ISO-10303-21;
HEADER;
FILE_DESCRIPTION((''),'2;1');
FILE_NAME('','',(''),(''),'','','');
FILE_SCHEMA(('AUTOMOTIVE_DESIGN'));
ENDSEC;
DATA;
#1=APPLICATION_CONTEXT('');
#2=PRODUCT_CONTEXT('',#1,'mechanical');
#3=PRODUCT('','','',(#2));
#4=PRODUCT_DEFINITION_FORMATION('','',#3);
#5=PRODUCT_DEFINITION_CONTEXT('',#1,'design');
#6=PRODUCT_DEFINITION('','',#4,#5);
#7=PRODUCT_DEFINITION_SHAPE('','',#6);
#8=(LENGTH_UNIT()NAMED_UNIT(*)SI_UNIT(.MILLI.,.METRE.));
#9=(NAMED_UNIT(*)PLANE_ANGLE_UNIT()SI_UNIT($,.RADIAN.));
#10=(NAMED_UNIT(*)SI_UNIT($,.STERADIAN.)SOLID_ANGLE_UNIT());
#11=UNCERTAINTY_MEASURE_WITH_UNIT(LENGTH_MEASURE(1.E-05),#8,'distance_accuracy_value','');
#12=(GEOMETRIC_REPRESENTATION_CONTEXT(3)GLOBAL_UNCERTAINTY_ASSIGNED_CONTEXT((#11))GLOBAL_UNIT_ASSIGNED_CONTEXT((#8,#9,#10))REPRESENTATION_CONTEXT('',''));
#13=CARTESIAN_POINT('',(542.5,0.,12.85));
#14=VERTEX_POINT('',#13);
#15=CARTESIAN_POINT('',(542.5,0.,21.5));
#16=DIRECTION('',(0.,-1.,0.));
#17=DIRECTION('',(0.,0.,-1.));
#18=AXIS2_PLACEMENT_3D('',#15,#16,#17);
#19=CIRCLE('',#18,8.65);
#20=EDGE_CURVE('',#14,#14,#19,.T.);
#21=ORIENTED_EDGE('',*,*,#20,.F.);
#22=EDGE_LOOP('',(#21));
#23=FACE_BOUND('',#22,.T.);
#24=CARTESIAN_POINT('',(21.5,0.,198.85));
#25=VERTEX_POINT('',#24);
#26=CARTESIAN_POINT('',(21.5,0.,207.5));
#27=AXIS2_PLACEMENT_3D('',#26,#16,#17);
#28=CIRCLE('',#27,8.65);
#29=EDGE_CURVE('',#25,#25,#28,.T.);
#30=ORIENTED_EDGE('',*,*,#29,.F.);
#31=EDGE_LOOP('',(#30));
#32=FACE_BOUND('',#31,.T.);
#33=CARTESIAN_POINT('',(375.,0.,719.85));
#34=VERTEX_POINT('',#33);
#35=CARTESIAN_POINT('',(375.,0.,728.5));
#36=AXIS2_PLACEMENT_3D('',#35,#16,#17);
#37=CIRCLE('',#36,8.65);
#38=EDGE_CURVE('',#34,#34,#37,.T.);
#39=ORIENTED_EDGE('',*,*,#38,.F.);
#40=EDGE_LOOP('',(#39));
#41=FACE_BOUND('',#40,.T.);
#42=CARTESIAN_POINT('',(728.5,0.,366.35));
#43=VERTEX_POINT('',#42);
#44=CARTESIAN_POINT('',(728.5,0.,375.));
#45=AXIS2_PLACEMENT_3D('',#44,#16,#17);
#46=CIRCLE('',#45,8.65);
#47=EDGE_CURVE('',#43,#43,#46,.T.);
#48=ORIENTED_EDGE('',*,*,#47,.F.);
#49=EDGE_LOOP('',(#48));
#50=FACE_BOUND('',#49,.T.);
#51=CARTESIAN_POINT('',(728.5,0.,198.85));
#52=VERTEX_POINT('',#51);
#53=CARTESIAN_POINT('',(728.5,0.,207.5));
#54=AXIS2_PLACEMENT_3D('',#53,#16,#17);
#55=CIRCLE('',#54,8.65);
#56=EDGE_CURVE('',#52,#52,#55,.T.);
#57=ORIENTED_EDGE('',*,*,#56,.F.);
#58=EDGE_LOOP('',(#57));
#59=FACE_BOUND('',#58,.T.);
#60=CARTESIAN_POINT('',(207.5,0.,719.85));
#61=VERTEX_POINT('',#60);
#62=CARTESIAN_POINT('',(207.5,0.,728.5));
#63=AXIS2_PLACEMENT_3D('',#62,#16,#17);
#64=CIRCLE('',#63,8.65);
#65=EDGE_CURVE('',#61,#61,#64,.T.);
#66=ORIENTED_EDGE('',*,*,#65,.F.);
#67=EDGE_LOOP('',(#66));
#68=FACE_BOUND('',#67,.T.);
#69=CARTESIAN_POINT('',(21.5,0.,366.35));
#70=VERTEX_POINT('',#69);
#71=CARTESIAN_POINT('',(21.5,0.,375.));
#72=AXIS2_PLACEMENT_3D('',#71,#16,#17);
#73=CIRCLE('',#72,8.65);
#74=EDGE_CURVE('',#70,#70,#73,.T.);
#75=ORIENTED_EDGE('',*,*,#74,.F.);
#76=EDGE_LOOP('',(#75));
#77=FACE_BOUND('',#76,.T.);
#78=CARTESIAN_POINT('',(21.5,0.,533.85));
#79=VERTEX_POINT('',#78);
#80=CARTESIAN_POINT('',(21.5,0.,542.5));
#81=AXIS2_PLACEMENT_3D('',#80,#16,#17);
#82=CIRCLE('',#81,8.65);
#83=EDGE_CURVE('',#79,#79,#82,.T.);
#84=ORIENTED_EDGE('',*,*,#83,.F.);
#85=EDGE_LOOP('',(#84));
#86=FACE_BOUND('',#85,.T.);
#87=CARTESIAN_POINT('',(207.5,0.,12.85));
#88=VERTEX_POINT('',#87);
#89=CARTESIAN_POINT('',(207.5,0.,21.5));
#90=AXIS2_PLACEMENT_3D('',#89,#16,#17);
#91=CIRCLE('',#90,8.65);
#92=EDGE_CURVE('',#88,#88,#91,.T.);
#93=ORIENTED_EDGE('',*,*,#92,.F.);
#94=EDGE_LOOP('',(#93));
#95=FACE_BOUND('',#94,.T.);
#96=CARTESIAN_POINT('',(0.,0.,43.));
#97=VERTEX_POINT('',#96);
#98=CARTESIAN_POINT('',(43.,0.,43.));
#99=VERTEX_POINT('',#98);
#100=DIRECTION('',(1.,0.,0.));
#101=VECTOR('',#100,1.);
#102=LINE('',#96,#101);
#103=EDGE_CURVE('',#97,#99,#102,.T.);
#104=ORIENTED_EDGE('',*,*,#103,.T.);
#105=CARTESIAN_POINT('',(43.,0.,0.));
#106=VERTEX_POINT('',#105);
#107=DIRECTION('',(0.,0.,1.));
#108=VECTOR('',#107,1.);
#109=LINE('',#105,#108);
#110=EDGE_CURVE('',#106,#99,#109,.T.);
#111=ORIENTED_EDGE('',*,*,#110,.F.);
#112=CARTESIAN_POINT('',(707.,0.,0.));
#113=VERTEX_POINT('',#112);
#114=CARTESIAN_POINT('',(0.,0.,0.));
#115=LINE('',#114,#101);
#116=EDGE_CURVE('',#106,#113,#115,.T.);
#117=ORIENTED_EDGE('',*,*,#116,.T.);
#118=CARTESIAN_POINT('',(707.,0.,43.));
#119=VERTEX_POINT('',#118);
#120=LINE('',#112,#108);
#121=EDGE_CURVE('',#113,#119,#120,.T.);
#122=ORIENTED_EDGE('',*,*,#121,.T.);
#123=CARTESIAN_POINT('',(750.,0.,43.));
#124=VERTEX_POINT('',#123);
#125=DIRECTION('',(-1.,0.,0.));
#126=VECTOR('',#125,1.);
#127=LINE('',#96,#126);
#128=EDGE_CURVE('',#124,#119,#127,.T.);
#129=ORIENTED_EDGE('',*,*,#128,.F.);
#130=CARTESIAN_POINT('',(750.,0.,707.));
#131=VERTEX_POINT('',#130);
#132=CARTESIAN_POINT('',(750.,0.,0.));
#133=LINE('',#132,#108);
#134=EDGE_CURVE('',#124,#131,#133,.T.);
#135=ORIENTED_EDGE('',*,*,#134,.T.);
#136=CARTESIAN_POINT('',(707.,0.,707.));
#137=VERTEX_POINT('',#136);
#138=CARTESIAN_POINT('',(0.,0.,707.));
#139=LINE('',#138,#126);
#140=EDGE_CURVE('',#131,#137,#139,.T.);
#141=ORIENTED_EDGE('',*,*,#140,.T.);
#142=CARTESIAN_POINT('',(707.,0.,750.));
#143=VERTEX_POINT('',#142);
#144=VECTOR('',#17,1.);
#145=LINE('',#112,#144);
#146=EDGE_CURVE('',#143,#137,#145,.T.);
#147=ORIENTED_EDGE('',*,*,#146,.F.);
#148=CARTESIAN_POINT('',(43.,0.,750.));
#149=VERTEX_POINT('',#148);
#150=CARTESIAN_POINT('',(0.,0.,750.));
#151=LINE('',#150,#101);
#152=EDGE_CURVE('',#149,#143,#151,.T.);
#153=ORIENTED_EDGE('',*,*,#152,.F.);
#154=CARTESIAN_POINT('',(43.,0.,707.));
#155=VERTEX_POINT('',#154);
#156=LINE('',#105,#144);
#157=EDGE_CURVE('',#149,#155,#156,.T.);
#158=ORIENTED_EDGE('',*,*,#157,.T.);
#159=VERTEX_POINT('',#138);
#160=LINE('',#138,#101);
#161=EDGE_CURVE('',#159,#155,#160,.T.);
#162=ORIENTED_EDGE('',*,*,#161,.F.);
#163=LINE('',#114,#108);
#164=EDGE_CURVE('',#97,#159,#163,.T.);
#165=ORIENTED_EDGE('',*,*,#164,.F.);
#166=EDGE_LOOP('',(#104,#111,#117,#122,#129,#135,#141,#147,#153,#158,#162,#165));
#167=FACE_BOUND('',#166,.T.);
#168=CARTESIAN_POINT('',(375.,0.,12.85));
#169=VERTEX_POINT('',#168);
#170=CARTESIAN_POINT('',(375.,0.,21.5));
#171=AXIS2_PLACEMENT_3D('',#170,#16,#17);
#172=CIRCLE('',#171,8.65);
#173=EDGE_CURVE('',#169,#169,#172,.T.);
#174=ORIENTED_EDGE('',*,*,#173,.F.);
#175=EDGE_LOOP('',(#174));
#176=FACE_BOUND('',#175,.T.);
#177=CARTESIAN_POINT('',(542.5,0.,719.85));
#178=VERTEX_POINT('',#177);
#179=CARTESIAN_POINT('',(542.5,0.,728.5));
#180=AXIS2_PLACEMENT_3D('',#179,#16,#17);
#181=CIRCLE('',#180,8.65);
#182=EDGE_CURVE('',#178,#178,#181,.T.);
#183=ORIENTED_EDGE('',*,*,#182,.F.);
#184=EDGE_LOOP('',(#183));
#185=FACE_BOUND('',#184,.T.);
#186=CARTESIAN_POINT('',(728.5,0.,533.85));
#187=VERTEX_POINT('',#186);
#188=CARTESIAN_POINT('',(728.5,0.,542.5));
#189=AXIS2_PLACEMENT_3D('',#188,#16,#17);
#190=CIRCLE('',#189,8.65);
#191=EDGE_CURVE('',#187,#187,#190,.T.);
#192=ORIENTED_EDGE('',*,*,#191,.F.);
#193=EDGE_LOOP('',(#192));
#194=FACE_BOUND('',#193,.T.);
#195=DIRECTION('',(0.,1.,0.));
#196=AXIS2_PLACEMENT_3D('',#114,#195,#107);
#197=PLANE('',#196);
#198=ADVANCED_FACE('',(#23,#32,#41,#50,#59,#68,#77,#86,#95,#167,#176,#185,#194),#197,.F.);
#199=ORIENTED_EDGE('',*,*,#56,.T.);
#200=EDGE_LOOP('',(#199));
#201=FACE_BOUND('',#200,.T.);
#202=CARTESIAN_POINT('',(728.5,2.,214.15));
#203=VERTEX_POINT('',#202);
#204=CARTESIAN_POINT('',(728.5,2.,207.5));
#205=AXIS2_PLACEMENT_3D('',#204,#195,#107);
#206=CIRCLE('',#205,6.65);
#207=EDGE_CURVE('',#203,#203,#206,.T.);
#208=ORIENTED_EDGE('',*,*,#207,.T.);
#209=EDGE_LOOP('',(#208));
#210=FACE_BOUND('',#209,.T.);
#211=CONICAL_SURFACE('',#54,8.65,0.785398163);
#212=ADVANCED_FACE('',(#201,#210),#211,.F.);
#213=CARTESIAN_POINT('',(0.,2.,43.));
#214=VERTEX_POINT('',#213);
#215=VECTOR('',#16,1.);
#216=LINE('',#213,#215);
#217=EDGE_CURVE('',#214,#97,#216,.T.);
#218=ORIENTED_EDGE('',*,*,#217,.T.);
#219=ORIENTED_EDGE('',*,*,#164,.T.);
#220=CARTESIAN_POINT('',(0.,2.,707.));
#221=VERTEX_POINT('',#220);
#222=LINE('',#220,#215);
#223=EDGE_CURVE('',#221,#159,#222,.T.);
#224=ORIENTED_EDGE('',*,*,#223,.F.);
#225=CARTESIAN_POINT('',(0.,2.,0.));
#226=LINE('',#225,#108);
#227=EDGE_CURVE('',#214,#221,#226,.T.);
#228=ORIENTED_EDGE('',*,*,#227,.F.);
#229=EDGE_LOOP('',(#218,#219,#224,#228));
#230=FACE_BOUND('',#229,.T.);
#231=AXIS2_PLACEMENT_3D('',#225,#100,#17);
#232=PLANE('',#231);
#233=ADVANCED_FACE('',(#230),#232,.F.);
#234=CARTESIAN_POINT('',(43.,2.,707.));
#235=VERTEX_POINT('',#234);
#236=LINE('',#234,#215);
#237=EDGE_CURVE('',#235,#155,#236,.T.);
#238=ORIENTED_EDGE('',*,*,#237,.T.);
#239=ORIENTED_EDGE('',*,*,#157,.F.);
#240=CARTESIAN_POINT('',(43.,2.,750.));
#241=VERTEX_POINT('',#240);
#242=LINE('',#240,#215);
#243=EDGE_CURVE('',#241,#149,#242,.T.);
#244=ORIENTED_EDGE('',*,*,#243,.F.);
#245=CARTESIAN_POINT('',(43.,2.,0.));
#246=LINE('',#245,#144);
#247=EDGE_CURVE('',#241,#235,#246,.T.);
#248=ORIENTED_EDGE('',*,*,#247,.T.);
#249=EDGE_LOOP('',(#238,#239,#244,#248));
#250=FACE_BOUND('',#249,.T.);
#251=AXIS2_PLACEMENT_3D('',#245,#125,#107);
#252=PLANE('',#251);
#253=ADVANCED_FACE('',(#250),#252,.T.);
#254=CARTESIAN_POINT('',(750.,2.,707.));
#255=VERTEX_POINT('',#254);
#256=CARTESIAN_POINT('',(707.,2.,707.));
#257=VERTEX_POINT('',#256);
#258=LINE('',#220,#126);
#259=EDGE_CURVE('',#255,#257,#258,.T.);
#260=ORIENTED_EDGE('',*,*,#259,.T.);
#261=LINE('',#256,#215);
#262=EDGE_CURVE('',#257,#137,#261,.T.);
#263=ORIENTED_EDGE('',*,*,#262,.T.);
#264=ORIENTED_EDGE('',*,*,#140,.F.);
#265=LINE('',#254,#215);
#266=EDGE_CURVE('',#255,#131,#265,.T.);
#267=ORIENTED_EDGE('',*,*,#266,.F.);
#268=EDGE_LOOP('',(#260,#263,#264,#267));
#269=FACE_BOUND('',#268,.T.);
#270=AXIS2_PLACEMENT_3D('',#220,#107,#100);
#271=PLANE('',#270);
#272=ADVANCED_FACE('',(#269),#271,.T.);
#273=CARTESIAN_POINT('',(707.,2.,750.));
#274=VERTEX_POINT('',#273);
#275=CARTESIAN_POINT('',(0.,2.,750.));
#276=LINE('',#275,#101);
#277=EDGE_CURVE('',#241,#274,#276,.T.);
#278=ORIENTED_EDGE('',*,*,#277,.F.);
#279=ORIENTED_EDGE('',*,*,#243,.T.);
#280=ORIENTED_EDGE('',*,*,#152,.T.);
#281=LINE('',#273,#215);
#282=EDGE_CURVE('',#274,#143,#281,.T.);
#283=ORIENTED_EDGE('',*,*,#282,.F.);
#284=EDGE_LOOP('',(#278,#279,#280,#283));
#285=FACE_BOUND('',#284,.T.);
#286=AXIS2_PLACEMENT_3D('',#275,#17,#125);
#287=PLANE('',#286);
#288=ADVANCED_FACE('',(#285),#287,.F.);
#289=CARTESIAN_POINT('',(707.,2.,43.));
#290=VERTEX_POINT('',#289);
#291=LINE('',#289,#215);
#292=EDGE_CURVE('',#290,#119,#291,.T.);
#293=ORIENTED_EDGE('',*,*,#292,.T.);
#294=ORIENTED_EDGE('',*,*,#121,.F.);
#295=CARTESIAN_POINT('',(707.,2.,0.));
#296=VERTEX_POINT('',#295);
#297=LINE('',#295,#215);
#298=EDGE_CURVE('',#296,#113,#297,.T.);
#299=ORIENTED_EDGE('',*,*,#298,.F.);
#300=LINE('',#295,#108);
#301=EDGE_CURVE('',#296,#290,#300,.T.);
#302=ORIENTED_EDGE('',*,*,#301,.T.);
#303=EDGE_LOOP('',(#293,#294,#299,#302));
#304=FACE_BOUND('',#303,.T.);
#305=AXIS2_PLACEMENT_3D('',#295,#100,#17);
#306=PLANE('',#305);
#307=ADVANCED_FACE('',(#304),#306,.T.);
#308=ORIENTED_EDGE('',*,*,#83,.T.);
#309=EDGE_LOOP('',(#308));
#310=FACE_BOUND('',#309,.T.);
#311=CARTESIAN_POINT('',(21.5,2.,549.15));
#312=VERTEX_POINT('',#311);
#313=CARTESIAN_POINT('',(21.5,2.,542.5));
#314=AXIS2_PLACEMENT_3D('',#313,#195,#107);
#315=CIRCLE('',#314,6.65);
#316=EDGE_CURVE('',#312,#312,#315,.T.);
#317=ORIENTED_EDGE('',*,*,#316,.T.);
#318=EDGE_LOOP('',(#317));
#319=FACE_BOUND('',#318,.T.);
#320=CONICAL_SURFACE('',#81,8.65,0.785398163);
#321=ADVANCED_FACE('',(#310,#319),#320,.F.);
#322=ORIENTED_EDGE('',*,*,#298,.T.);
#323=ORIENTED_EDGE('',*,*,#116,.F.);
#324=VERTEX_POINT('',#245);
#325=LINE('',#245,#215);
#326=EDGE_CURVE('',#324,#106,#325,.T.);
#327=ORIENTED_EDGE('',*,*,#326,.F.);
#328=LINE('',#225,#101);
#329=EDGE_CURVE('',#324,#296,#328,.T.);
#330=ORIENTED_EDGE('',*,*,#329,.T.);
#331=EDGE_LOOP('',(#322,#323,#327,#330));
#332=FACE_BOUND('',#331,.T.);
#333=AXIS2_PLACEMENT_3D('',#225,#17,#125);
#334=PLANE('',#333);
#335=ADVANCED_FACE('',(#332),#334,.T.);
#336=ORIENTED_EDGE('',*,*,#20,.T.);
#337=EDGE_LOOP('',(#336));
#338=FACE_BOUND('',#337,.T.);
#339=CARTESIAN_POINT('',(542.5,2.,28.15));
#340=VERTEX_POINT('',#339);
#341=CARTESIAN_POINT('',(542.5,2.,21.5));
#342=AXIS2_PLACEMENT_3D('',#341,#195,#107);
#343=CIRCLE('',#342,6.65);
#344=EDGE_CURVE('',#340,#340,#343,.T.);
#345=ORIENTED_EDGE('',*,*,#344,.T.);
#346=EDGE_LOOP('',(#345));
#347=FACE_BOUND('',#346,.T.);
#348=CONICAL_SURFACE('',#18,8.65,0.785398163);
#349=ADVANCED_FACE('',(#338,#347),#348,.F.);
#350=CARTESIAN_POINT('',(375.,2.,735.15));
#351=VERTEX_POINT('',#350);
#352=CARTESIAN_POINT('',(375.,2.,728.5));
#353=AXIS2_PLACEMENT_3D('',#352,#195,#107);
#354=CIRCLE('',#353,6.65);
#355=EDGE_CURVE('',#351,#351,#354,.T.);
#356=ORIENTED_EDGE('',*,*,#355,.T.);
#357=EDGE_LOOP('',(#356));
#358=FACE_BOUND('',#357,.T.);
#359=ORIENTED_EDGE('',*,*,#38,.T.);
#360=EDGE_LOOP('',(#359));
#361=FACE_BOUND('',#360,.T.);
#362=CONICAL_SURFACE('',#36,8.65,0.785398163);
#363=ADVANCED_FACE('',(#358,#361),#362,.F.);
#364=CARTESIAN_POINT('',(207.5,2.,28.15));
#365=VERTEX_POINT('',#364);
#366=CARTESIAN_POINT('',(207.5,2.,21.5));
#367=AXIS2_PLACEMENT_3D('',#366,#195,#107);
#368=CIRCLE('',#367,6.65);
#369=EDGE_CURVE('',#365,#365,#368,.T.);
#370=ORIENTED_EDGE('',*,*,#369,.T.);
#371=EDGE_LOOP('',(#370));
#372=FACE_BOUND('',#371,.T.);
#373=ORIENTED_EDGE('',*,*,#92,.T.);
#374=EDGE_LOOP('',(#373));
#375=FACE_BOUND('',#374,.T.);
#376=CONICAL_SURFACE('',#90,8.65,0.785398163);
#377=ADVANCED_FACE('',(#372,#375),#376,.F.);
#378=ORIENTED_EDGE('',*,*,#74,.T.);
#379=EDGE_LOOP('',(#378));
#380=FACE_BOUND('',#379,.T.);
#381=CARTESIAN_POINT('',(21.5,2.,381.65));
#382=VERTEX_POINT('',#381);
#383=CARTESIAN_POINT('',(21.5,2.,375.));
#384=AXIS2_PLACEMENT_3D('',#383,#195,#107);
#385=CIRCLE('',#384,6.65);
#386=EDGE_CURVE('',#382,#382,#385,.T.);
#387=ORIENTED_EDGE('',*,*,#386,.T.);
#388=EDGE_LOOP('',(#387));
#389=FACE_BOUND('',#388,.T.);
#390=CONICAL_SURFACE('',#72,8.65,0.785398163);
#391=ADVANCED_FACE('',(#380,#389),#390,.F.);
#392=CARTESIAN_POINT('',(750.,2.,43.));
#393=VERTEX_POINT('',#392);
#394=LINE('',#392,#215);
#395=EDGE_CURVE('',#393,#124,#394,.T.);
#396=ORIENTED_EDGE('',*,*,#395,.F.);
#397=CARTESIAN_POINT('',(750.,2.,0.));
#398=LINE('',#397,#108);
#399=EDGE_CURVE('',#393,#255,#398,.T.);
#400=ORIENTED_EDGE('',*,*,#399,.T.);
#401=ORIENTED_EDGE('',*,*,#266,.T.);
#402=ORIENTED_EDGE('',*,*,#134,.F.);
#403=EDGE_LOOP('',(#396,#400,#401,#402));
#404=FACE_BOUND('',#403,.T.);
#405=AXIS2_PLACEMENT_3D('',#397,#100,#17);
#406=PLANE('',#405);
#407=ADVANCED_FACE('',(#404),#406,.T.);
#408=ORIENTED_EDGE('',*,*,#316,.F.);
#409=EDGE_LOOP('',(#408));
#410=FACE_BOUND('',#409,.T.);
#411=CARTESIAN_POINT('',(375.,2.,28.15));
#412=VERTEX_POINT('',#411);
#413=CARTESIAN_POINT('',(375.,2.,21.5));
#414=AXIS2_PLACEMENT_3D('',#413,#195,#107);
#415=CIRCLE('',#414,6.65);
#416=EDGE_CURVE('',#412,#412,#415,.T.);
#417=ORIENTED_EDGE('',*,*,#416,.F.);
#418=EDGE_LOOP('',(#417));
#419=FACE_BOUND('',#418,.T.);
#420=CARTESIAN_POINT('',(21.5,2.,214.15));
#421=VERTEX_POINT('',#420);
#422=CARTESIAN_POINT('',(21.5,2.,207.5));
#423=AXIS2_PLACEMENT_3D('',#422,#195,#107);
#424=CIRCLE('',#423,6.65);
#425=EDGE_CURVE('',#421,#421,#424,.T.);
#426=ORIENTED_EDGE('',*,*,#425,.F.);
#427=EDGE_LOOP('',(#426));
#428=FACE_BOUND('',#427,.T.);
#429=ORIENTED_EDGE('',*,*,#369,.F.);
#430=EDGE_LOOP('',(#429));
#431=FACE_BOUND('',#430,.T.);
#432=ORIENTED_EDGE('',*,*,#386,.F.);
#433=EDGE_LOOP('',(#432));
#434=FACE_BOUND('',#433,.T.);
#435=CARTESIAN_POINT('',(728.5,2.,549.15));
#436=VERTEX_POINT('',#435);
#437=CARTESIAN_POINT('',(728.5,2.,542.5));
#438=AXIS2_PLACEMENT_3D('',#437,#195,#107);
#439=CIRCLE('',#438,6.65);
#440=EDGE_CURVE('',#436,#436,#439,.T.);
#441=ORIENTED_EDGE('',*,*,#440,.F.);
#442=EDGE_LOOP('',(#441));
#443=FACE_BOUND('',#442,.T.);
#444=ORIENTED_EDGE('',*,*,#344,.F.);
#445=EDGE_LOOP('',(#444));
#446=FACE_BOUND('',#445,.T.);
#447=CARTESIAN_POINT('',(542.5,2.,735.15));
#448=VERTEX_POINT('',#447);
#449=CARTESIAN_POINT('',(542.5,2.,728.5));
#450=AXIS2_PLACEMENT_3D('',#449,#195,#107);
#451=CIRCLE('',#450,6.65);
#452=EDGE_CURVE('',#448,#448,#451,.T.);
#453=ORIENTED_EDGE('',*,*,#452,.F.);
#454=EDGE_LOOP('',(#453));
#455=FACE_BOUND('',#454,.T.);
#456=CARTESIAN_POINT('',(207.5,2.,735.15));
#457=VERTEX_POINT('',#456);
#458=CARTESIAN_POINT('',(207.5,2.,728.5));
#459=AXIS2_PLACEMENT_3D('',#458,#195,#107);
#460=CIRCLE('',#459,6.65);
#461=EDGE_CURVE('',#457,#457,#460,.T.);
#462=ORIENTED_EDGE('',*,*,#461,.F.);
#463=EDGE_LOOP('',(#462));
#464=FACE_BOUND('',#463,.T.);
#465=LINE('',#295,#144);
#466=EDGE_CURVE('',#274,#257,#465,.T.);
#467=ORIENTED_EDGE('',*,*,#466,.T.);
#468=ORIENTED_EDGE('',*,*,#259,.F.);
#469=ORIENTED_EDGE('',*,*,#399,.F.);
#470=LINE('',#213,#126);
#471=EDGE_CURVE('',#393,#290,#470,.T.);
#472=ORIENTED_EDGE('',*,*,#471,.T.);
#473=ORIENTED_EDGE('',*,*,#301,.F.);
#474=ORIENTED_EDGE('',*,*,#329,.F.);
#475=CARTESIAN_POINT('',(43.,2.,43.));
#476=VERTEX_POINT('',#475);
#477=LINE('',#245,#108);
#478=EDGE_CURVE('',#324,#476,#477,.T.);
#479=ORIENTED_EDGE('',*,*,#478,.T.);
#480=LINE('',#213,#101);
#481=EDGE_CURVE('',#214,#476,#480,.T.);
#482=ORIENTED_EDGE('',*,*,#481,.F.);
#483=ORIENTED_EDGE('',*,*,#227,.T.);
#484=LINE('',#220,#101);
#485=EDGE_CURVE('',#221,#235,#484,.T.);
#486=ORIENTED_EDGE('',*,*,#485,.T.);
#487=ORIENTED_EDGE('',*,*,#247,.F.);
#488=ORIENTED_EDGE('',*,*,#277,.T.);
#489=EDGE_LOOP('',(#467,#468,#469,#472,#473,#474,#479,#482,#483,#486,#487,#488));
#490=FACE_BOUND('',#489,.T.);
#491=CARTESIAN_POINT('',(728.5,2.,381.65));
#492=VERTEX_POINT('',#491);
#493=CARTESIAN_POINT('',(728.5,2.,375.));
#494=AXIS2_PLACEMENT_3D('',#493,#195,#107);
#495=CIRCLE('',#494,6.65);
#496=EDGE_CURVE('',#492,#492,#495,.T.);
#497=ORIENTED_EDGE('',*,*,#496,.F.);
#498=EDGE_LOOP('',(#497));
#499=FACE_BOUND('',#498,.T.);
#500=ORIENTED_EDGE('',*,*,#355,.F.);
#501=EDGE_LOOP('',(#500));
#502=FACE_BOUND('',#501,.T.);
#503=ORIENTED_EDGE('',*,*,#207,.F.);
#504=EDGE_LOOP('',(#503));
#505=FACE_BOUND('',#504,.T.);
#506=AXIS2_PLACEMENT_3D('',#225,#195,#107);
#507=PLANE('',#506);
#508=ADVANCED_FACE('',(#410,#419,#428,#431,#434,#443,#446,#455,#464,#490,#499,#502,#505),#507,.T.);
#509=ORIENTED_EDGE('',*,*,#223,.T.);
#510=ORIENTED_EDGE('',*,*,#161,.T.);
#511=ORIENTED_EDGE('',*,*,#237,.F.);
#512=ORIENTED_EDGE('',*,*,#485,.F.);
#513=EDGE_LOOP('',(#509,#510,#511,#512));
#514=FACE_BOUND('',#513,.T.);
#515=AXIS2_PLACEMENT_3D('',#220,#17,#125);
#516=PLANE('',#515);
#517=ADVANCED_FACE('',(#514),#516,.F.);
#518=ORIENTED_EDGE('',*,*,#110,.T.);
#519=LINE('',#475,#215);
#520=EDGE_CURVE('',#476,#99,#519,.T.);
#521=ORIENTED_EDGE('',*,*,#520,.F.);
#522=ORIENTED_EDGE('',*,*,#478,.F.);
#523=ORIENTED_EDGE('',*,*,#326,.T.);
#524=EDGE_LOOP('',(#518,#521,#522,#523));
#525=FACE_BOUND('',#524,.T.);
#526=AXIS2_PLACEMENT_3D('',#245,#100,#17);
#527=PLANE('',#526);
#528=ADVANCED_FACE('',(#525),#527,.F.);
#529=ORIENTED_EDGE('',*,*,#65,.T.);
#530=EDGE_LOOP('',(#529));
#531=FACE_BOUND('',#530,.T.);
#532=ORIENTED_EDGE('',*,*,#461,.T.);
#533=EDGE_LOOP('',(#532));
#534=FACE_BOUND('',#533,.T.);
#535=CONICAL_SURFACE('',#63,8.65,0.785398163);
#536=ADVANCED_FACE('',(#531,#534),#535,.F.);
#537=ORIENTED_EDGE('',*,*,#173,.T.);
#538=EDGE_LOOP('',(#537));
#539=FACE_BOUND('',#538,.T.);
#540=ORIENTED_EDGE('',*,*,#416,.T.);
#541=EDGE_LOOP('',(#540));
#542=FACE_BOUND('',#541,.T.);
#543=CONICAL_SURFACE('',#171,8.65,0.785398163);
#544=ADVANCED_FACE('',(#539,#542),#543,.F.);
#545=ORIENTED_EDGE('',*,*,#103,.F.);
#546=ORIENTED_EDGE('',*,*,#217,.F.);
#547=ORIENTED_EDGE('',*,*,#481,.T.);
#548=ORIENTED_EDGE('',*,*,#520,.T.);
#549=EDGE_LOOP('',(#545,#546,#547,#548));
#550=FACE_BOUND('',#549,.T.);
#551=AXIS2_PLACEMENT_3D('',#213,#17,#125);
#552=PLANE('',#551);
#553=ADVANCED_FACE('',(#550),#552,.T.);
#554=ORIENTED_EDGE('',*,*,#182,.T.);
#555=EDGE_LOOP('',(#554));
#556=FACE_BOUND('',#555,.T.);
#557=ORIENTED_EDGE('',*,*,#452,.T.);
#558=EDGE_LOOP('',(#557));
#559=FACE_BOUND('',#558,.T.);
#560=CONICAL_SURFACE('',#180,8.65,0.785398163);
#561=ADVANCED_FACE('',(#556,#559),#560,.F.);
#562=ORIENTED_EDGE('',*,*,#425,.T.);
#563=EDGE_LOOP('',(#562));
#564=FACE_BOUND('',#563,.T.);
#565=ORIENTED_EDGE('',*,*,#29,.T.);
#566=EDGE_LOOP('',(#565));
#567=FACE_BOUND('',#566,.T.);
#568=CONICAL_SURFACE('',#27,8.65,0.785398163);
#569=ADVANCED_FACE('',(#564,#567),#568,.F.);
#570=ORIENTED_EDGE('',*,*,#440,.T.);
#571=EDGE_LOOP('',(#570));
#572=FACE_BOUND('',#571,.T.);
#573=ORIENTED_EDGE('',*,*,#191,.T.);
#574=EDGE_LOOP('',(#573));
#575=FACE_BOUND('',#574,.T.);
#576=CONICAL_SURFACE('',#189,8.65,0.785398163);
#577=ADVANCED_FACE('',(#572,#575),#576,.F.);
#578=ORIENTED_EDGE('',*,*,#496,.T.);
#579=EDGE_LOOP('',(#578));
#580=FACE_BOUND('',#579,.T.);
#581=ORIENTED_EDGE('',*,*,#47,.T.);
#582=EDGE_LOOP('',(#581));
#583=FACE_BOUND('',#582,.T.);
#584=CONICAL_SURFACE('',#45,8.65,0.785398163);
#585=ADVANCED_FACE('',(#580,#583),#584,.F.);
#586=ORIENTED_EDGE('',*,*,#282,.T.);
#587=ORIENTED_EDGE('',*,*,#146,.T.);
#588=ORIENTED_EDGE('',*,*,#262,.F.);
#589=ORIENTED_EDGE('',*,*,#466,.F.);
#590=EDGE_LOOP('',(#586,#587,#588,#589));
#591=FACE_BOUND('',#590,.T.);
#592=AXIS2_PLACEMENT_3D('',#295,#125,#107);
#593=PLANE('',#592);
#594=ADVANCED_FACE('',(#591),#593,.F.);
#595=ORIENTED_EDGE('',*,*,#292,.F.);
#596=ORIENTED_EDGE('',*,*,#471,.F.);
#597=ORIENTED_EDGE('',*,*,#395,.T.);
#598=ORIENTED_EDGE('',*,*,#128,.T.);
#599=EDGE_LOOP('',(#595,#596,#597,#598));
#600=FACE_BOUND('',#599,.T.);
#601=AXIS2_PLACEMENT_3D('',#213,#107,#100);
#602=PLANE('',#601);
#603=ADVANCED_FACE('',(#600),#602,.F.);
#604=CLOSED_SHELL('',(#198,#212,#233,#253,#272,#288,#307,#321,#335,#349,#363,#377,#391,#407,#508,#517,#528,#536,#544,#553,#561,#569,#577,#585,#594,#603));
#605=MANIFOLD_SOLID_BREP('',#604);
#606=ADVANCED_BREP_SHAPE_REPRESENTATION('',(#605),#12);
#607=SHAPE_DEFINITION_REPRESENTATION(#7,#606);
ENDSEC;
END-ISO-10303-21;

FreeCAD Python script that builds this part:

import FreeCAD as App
import Part
import Sketcher
Q = App.Units.Quantity

doc = App.newDocument("Part")
body = doc.addObject("PartDesign::Body", "Body")

# Sketch on XZ plane
sketch1 = body.newObject("Sketcher::SketchObject", "Sketch")
sketch1.AttachmentSupport = (doc.getObject("XZ_Plane"), [""])
sketch1.MapMode = "FlatFace"
sketch1.addGeometry([
    Part.LineSegment(App.Vector(750, 707, 0), App.Vector(750, 43, 0)),  # 0
    Part.LineSegment(App.Vector(750, 43, 0), App.Vector(707, 43, 0)),  # 1
    Part.LineSegment(App.Vector(707, 43, 0), App.Vector(707, 0, 0)),  # 2
    Part.LineSegment(App.Vector(707, 0, 0), App.Vector(43, 0, 0)),  # 3
    Part.LineSegment(App.Vector(43, 0, 0), App.Vector(43, 43, 0)),  # 4
    Part.LineSegment(App.Vector(43, 43, 0), App.Vector(0, 43, 0)),  # 5
    Part.LineSegment(App.Vector(0, 43, 0), App.Vector(0, 707, 0)),  # 6
    Part.LineSegment(App.Vector(0, 707, 0), App.Vector(43, 707, 0)),  # 7
    Part.LineSegment(App.Vector(43, 707, 0), App.Vector(43, 750, 0)),  # 8
    Part.LineSegment(App.Vector(43, 750, 0), App.Vector(707, 750, 0)),  # 9
    Part.LineSegment(App.Vector(707, 750, 0), App.Vector(707, 707, 0)),  # 10
    Part.LineSegment(App.Vector(707, 707, 0), App.Vector(750, 707, 0)),  # 11
], False)
sketch1.addConstraint([
    Sketcher.Constraint("Coincident", 0, 2, 1, 1),
    Sketcher.Constraint("Coincident", 1, 2, 2, 1),
    Sketcher.Constraint("Coincident", 2, 2, 3, 1),
    Sketcher.Constraint("Coincident", 3, 2, 4, 1),
    Sketcher.Constraint("Coincident", 4, 2, 5, 1),
    Sketcher.Constraint("Coincident", 5, 2, 6, 1),
    Sketcher.Constraint("Coincident", 6, 2, 7, 1),
    Sketcher.Constraint("Coincident", 7, 2, 8, 1),
    Sketcher.Constraint("Coincident", 8, 2, 9, 1),
    Sketcher.Constraint("Coincident", 9, 2, 10, 1),
    Sketcher.Constraint("Coincident", 10, 2, 11, 1),
    Sketcher.Constraint("Coincident", 11, 2, 0, 1),
    Sketcher.Constraint("Vertical", 0),
    Sketcher.Constraint("Horizontal", 1),
    Sketcher.Constraint("Vertical", 2),
    Sketcher.Constraint("Horizontal", 3),
    Sketcher.Constraint("Vertical", 4),
    Sketcher.Constraint("Horizontal", 5),
    Sketcher.Constraint("Vertical", 6),
    Sketcher.Constraint("Horizontal", 7),
    Sketcher.Constraint("Vertical", 8),
    Sketcher.Constraint("Horizontal", 9),
    Sketcher.Constraint("Vertical", 10),
    Sketcher.Constraint("Horizontal", 11),
    Sketcher.Constraint("PointOnObject", 2, 2, -1),
    Sketcher.Constraint("PointOnObject", 5, 2, -2),
    Sketcher.Constraint("Horizontal", 1, 2, 4, 2),
    Sketcher.Constraint("Horizontal", 7, 2, 10, 2),
    Sketcher.Constraint("Vertical", 4, 2, 7, 2),
    Sketcher.Constraint("Vertical", 2, 2, 9, 2),
    Sketcher.Constraint("Equal", 1, 5),
    Sketcher.Constraint("Equal", 9, 0),
    Sketcher.Constraint("Equal", 11, 2),
    Sketcher.Constraint("Equal", 4, 8),
    Sketcher.Constraint("DistanceX", 1, 2, 1, 1, 43.0),
    Sketcher.Constraint("DistanceX", 3, 2, 3, 1, 664.0),
])
pad1 = body.newObject("PartDesign::Pad", "Pad")
pad1.Profile = sketch1
pad1.Length = 2
pad1.Reversed = True

# Sketch on YZ plane
sketch2 = body.newObject("Sketcher::SketchObject", "Sketch001")
sketch2.AttachmentSupport = (doc.getObject("YZ_Plane"), [""])
sketch2.MapMode = "FlatFace"
sketch2.AttachmentOffset = App.Placement(App.Vector(0, 0, 21.5), App.Rotation())
sketch2.addGeometry([
    Part.LineSegment(App.Vector(2, 375, 0), App.Vector(0, 375, 0)),  # 0
    Part.LineSegment(App.Vector(0, 375, 0), App.Vector(0, 366.4, 0)),  # 1
    Part.LineSegment(App.Vector(0, 366.4, 0), App.Vector(4.2, 370.5, 0)),  # 2
    Part.LineSegment(App.Vector(4.2, 370.5, 0), App.Vector(2, 370.5, 0)),  # 3
    Part.LineSegment(App.Vector(2, 370.5, 0), App.Vector(2, 375, 0)),  # 4
], False)
sketch2.addGeometry(Part.LineSegment(App.Vector(0, 375, 0), App.Vector(4.2, 375, 0)), True)  # axis
sketch2.addConstraint([
    Sketcher.Constraint("Coincident", 0, 2, 1, 1),
    Sketcher.Constraint("Coincident", 1, 2, 2, 1),
    Sketcher.Constraint("Coincident", 2, 2, 3, 1),
    Sketcher.Constraint("Coincident", 3, 2, 4, 1),
    Sketcher.Constraint("Coincident", 4, 2, 0, 1),
    Sketcher.Constraint("Horizontal", 0),
    Sketcher.Constraint("Vertical", 1),
    Sketcher.Constraint("Horizontal", 3),
    Sketcher.Constraint("Vertical", 4),
    Sketcher.Constraint("Horizontal", 5),
    Sketcher.Constraint("Coincident", 5, 1, 0, 2),
    Sketcher.Constraint("PointOnObject", 0, 2, -2),
    Sketcher.Constraint("Vertical", 2, 2, 5, 2),
    Sketcher.Constraint("DistanceX", 0, 2, 0, 1, 2.0),
    Sketcher.Constraint("Angle", 2, Q("45 deg")),
    Sketcher.Constraint("DistanceY", 4, 1, 4, 2, 4.5),
    Sketcher.Constraint("DistanceY", -1, 1, 0, 2, 375.0),
    Sketcher.Constraint("DistanceX", 3, 2, 3, 1, 2.15),
])
groove = body.newObject("PartDesign::Groove", "Groove")
groove.Profile = sketch2
groove.ReferenceAxis = (sketch2, ["Axis0"])
groove.Angle = 360

# Sketch on YZ plane
sketch3 = body.newObject("Sketcher::SketchObject", "Sketch002")
sketch3.AttachmentSupport = (doc.getObject("YZ_Plane"), [""])
sketch3.MapMode = "FlatFace"
sketch3.AttachmentOffset = App.Placement(App.Vector(0, 0, 375), App.Rotation())
sketch3.addGeometry([
    Part.LineSegment(App.Vector(2, 728.5, 0), App.Vector(0, 728.5, 0)),  # 0
    Part.LineSegment(App.Vector(0, 728.5, 0), App.Vector(0, 719.9, 0)),  # 1
    Part.LineSegment(App.Vector(0, 719.9, 0), App.Vector(4.2, 724, 0)),  # 2
    Part.LineSegment(App.Vector(4.2, 724, 0), App.Vector(2, 724, 0)),  # 3
    Part.LineSegment(App.Vector(2, 724, 0), App.Vector(2, 728.5, 0)),  # 4
], False)
sketch3.addGeometry(Part.LineSegment(App.Vector(0, 728.5, 0), App.Vector(4.2, 728.5, 0)), True)  # axis
sketch3.addConstraint([
    Sketcher.Constraint("Coincident", 0, 2, 1, 1),
    Sketcher.Constraint("Coincident", 1, 2, 2, 1),
    Sketcher.Constraint("Coincident", 2, 2, 3, 1),
    Sketcher.Constraint("Coincident", 3, 2, 4, 1),
    Sketcher.Constraint("Coincident", 4, 2, 0, 1),
    Sketcher.Constraint("Horizontal", 0),
    Sketcher.Constraint("Vertical", 1),
    Sketcher.Constraint("Horizontal", 3),
    Sketcher.Constraint("Vertical", 4),
    Sketcher.Constraint("Horizontal", 5),
    Sketcher.Constraint("Coincident", 5, 1, 0, 2),
    Sketcher.Constraint("PointOnObject", 0, 2, -2),
    Sketcher.Constraint("Vertical", 2, 2, 5, 2),
    Sketcher.Constraint("DistanceX", 0, 2, 0, 1, 2.0),
    Sketcher.Constraint("Angle", 2, Q("45 deg")),
    Sketcher.Constraint("DistanceY", 4, 1, 4, 2, 4.5),
    Sketcher.Constraint("DistanceY", -1, 1, 2, 2, 724.0),
    Sketcher.Constraint("DistanceX", 3, 2, 3, 1, 2.15),
])
groove2 = body.newObject("PartDesign::Groove", "Groove001")
groove2.Profile = sketch3
groove2.ReferenceAxis = (sketch3, ["Axis0"])
groove2.Angle = 360
doc.recompute()

linearpattern = body.newObject("PartDesign::LinearPattern", "LinearPattern")
linearpattern.Originals = [groove2]
linearpattern.Direction = (doc.getObject("X_Axis"), [""])
linearpattern.Mode = "offset"
linearpattern.Offset = 167.5
linearpattern.Occurrences = 2
body.Tip = linearpattern
doc.recompute()

linearpattern2 = body.newObject("PartDesign::LinearPattern", "LinearPattern001")
linearpattern2.Originals = [groove2]
linearpattern2.Direction = (doc.getObject("X_Axis"), [""])
linearpattern2.Mode = "offset"
linearpattern2.Offset = 167.5
linearpattern2.Occurrences = 2
linearpattern2.Reversed = True
body.Tip = linearpattern2
doc.recompute()

datumline = body.newObject("PartDesign::Line", "DatumLine")
datumline.Placement = App.Placement(App.Vector(0, 0, 0), App.Rotation(App.Vector(0, 0, 1), App.Vector(-0.884972521, 0, -0.46564325)))
linearpattern3 = body.newObject("PartDesign::LinearPattern", "LinearPattern002")
linearpattern3.Originals = [groove2]
linearpattern3.Direction = (datumline, [""])
linearpattern3.Mode = "offset"
linearpattern3.Offset = 399.447431
linearpattern3.Occurrences = 2
body.Tip = linearpattern3
doc.recompute()

datumline2 = body.newObject("PartDesign::Line", "DatumLine001")
datumline2.Placement = App.Placement(App.Vector(0, 0, 0), App.Rotation(App.Vector(0, 0, 1), App.Vector(-0.561462577, 0, -0.827502129)))
linearpattern4 = body.newObject("PartDesign::LinearPattern", "LinearPattern003")
linearpattern4.Originals = [groove2]
linearpattern4.Direction = (datumline2, [""])
linearpattern4.Mode = "offset"
linearpattern4.Offset = 629.60563
linearpattern4.Occurrences = 2
body.Tip = linearpattern4
doc.recompute()

datumplane = body.newObject("PartDesign::Plane", "DatumPlane")
datumplane.AttachmentSupport = (doc.getObject("YZ_Plane"), [""])
datumplane.MapMode = "FlatFace"
datumplane.AttachmentOffset = App.Placement(App.Vector(0, 0, 375), App.Rotation())
mirrored = body.newObject("PartDesign::Mirrored", "Mirrored")
mirrored.Originals = [groove, groove2]
mirrored.MirrorPlane = (datumplane, [""])
body.Tip = mirrored

# Sketch on YZ plane
sketch4 = body.newObject("Sketcher::SketchObject", "Sketch003")
sketch4.AttachmentSupport = (doc.getObject("YZ_Plane"), [""])
sketch4.MapMode = "FlatFace"
sketch4.AttachmentOffset = App.Placement(App.Vector(0, 0, 207.5), App.Rotation())
sketch4.addGeometry([
    Part.LineSegment(App.Vector(0, 728.5, 0), App.Vector(2, 728.5, 0)),  # 0
    Part.LineSegment(App.Vector(2, 728.5, 0), App.Vector(2, 724, 0)),  # 1
    Part.LineSegment(App.Vector(2, 724, 0), App.Vector(4.2, 724, 0)),  # 2
    Part.LineSegment(App.Vector(4.2, 724, 0), App.Vector(0, 719.9, 0)),  # 3
    Part.LineSegment(App.Vector(0, 719.9, 0), App.Vector(0, 728.5, 0)),  # 4
], False)
sketch4.addGeometry(Part.LineSegment(App.Vector(4.2, 728.5, 0), App.Vector(0, 728.5, 0)), True)  # axis
sketch4.addConstraint([
    Sketcher.Constraint("Coincident", 0, 2, 1, 1),
    Sketcher.Constraint("Coincident", 1, 2, 2, 1),
    Sketcher.Constraint("Coincident", 2, 2, 3, 1),
    Sketcher.Constraint("Coincident", 3, 2, 4, 1),
    Sketcher.Constraint("Coincident", 4, 2, 0, 1),
    Sketcher.Constraint("Horizontal", 0),
    Sketcher.Constraint("Vertical", 1),
    Sketcher.Constraint("Horizontal", 2),
    Sketcher.Constraint("Vertical", 4),
    Sketcher.Constraint("Horizontal", 5),
    Sketcher.Constraint("Coincident", 5, 2, 4, 2),
    Sketcher.Constraint("PointOnObject", 3, 2, -2),
    Sketcher.Constraint("Vertical", 2, 2, 5, 1),
    Sketcher.Constraint("DistanceX", 0, 1, 0, 2, 2.0),
    Sketcher.Constraint("Angle", 3, Q("-135 deg")),
    Sketcher.Constraint("DistanceY", 1, 2, 1, 1, 4.5),
    Sketcher.Constraint("DistanceY", -1, 1, 1, 2, 724.0),
    Sketcher.Constraint("DistanceX", 2, 1, 2, 2, 2.15),
])
groove3 = body.newObject("PartDesign::Groove", "Groove002")
groove3.Profile = sketch4
groove3.ReferenceAxis = (sketch4, ["Axis0"])
groove3.Angle = 360

# Sketch on YZ plane
sketch5 = body.newObject("Sketcher::SketchObject", "Sketch004")
sketch5.AttachmentSupport = (doc.getObject("YZ_Plane"), [""])
sketch5.MapMode = "FlatFace"
sketch5.AttachmentOffset = App.Placement(App.Vector(0, 0, 542.5), App.Rotation())
sketch5.addGeometry([
    Part.LineSegment(App.Vector(0, 728.5, 0), App.Vector(2, 728.5, 0)),  # 0
    Part.LineSegment(App.Vector(2, 728.5, 0), App.Vector(2, 724, 0)),  # 1
    Part.LineSegment(App.Vector(2, 724, 0), App.Vector(4.2, 724, 0)),  # 2
    Part.LineSegment(App.Vector(4.2, 724, 0), App.Vector(0, 719.9, 0)),  # 3
    Part.LineSegment(App.Vector(0, 719.9, 0), App.Vector(0, 728.5, 0)),  # 4
], False)
sketch5.addGeometry(Part.LineSegment(App.Vector(4.2, 728.5, 0), App.Vector(0, 728.5, 0)), True)  # axis
sketch5.addConstraint([
    Sketcher.Constraint("Coincident", 0, 2, 1, 1),
    Sketcher.Constraint("Coincident", 1, 2, 2, 1),
    Sketcher.Constraint("Coincident", 2, 2, 3, 1),
    Sketcher.Constraint("Coincident", 3, 2, 4, 1),
    Sketcher.Constraint("Coincident", 4, 2, 0, 1),
    Sketcher.Constraint("Horizontal", 0),
    Sketcher.Constraint("Vertical", 1),
    Sketcher.Constraint("Horizontal", 2),
    Sketcher.Constraint("Vertical", 4),
    Sketcher.Constraint("Horizontal", 5),
    Sketcher.Constraint("Coincident", 5, 2, 4, 2),
    Sketcher.Constraint("PointOnObject", 3, 2, -2),
    Sketcher.Constraint("Vertical", 2, 2, 5, 1),
    Sketcher.Constraint("DistanceX", 0, 1, 0, 2, 2.0),
    Sketcher.Constraint("Angle", 3, Q("-135 deg")),
    Sketcher.Constraint("DistanceY", 1, 2, 1, 1, 4.5),
    Sketcher.Constraint("DistanceY", -1, 1, 1, 2, 724.0),
    Sketcher.Constraint("DistanceX", 2, 1, 2, 2, 2.15),
])
groove4 = body.newObject("PartDesign::Groove", "Groove003")
groove4.Profile = sketch5
groove4.ReferenceAxis = (sketch5, ["Axis0"])
groove4.Angle = 360

# Sketch on YZ plane
sketch6 = body.newObject("Sketcher::SketchObject", "Sketch005")
sketch6.AttachmentSupport = (doc.getObject("YZ_Plane"), [""])
sketch6.MapMode = "FlatFace"
sketch6.AttachmentOffset = App.Placement(App.Vector(0, 0, 728.5), App.Rotation())
sketch6.addGeometry([
    Part.LineSegment(App.Vector(0, 542.5, 0), App.Vector(2, 542.5, 0)),  # 0
    Part.LineSegment(App.Vector(2, 542.5, 0), App.Vector(2, 538, 0)),  # 1
    Part.LineSegment(App.Vector(2, 538, 0), App.Vector(4.2, 538, 0)),  # 2
    Part.LineSegment(App.Vector(4.2, 538, 0), App.Vector(0, 533.9, 0)),  # 3
    Part.LineSegment(App.Vector(0, 533.9, 0), App.Vector(0, 542.5, 0)),  # 4
], False)
sketch6.addGeometry(Part.LineSegment(App.Vector(4.2, 542.5, 0), App.Vector(0, 542.5, 0)), True)  # axis
sketch6.addConstraint([
    Sketcher.Constraint("Coincident", 0, 2, 1, 1),
    Sketcher.Constraint("Coincident", 1, 2, 2, 1),
    Sketcher.Constraint("Coincident", 2, 2, 3, 1),
    Sketcher.Constraint("Coincident", 3, 2, 4, 1),
    Sketcher.Constraint("Coincident", 4, 2, 0, 1),
    Sketcher.Constraint("Horizontal", 0),
    Sketcher.Constraint("Vertical", 1),
    Sketcher.Constraint("Horizontal", 2),
    Sketcher.Constraint("Vertical", 4),
    Sketcher.Constraint("Horizontal", 5),
    Sketcher.Constraint("Coincident", 5, 2, 4, 2),
    Sketcher.Constraint("PointOnObject", 3, 2, -2),
    Sketcher.Constraint("Vertical", 2, 2, 5, 1),
    Sketcher.Constraint("DistanceX", 0, 1, 0, 2, 2.0),
    Sketcher.Constraint("Angle", 3, Q("-135 deg")),
    Sketcher.Constraint("DistanceY", 1, 2, 1, 1, 4.5),
    Sketcher.Constraint("DistanceY", -1, 1, 1, 2, 538.0),
    Sketcher.Constraint("DistanceX", 2, 1, 2, 2, 2.15),
])
groove5 = body.newObject("PartDesign::Groove", "Groove004")
groove5.Profile = sketch6
groove5.ReferenceAxis = (sketch6, ["Axis0"])
groove5.Angle = 360

# Sketch on YZ plane
sketch7 = body.newObject("Sketcher::SketchObject", "Sketch006")
sketch7.AttachmentSupport = (doc.getObject("YZ_Plane"), [""])
sketch7.MapMode = "FlatFace"
sketch7.AttachmentOffset = App.Placement(App.Vector(0, 0, 728.5), App.Rotation())
sketch7.addGeometry([
    Part.LineSegment(App.Vector(0, 207.5, 0), App.Vector(2, 207.5, 0)),  # 0
    Part.LineSegment(App.Vector(2, 207.5, 0), App.Vector(2, 203, 0)),  # 1
    Part.LineSegment(App.Vector(2, 203, 0), App.Vector(4.2, 203, 0)),  # 2
    Part.LineSegment(App.Vector(4.2, 203, 0), App.Vector(0, 198.8, 0)),  # 3
    Part.LineSegment(App.Vector(0, 198.8, 0), App.Vector(0, 207.5, 0)),  # 4
], False)
sketch7.addGeometry(Part.LineSegment(App.Vector(4.2, 207.5, 0), App.Vector(0, 207.5, 0)), True)  # axis
sketch7.addConstraint([
    Sketcher.Constraint("Coincident", 0, 2, 1, 1),
    Sketcher.Constraint("Coincident", 1, 2, 2, 1),
    Sketcher.Constraint("Coincident", 2, 2, 3, 1),
    Sketcher.Constraint("Coincident", 3, 2, 4, 1),
    Sketcher.Constraint("Coincident", 4, 2, 0, 1),
    Sketcher.Constraint("Horizontal", 0),
    Sketcher.Constraint("Vertical", 1),
    Sketcher.Constraint("Horizontal", 2),
    Sketcher.Constraint("Vertical", 4),
    Sketcher.Constraint("Horizontal", 5),
    Sketcher.Constraint("Coincident", 5, 2, 4, 2),
    Sketcher.Constraint("PointOnObject", 3, 2, -2),
    Sketcher.Constraint("Vertical", 2, 2, 5, 1),
    Sketcher.Constraint("DistanceX", 0, 1, 0, 2, 2.0),
    Sketcher.Constraint("Angle", 3, Q("-135 deg")),
    Sketcher.Constraint("DistanceY", 1, 2, 1, 1, 4.5),
    Sketcher.Constraint("DistanceY", -1, 1, 1, 2, 203.0),
    Sketcher.Constraint("DistanceX", 2, 1, 2, 2, 2.15),
])
groove6 = body.newObject("PartDesign::Groove", "Groove005")
groove6.Profile = sketch7
groove6.ReferenceAxis = (sketch7, ["Axis0"])
groove6.Angle = 360
doc.recompute()

datumplane2 = body.newObject("PartDesign::Plane", "DatumPlane001")
datumplane2.AttachmentSupport = (doc.getObject("XY_Plane"), [""])
datumplane2.MapMode = "FlatFace"
datumplane2.AttachmentOffset = App.Placement(App.Vector(0, 0, 375), App.Rotation())
mirrored2 = body.newObject("PartDesign::Mirrored", "Mirrored001")
mirrored2.Originals = [groove2]
mirrored2.MirrorPlane = (datumplane2, [""])
body.Tip = mirrored2

# Sketch on YZ plane
sketch8 = body.newObject("Sketcher::SketchObject", "Sketch007")
sketch8.AttachmentSupport = (doc.getObject("YZ_Plane"), [""])
sketch8.MapMode = "FlatFace"
sketch8.AttachmentOffset = App.Placement(App.Vector(0, 0, 542.5), App.Rotation())
sketch8.addGeometry([
    Part.LineSegment(App.Vector(0, 21.5, 0), App.Vector(2, 21.5, 0)),  # 0
    Part.LineSegment(App.Vector(2, 21.5, 0), App.Vector(2, 26, 0)),  # 1
    Part.LineSegment(App.Vector(2, 26, 0), App.Vector(4.2, 26, 0)),  # 2
    Part.LineSegment(App.Vector(4.2, 26, 0), App.Vector(0, 30.1, 0)),  # 3
    Part.LineSegment(App.Vector(0, 30.1, 0), App.Vector(0, 21.5, 0)),  # 4
], False)
sketch8.addGeometry(Part.LineSegment(App.Vector(4.2, 21.5, 0), App.Vector(0, 21.5, 0)), True)  # axis
sketch8.addConstraint([
    Sketcher.Constraint("Coincident", 0, 2, 1, 1),
    Sketcher.Constraint("Coincident", 1, 2, 2, 1),
    Sketcher.Constraint("Coincident", 2, 2, 3, 1),
    Sketcher.Constraint("Coincident", 3, 2, 4, 1),
    Sketcher.Constraint("Coincident", 4, 2, 0, 1),
    Sketcher.Constraint("Horizontal", 0),
    Sketcher.Constraint("Vertical", 1),
    Sketcher.Constraint("Horizontal", 2),
    Sketcher.Constraint("Vertical", 4),
    Sketcher.Constraint("Horizontal", 5),
    Sketcher.Constraint("Coincident", 5, 2, 4, 2),
    Sketcher.Constraint("PointOnObject", 3, 2, -2),
    Sketcher.Constraint("Vertical", 2, 2, 5, 1),
    Sketcher.Constraint("DistanceX", 0, 1, 0, 2, 2.0),
    Sketcher.Constraint("Angle", 3, Q("135 deg")),
    Sketcher.Constraint("DistanceY", 1, 1, 1, 2, 4.5),
    Sketcher.Constraint("DistanceY", -1, 1, 1, 2, 26.0),
    Sketcher.Constraint("DistanceX", 2, 1, 2, 2, 2.15),
])
groove7 = body.newObject("PartDesign::Groove", "Groove006")
groove7.Profile = sketch8
groove7.ReferenceAxis = (sketch8, ["Axis0"])
groove7.Angle = 360

# Sketch on YZ plane
sketch9 = body.newObject("Sketcher::SketchObject", "Sketch008")
sketch9.AttachmentSupport = (doc.getObject("YZ_Plane"), [""])
sketch9.MapMode = "FlatFace"
sketch9.AttachmentOffset = App.Placement(App.Vector(0, 0, 207.5), App.Rotation())
sketch9.addGeometry([
    Part.LineSegment(App.Vector(0, 21.5, 0), App.Vector(2, 21.5, 0)),  # 0
    Part.LineSegment(App.Vector(2, 21.5, 0), App.Vector(2, 26, 0)),  # 1
    Part.LineSegment(App.Vector(2, 26, 0), App.Vector(4.2, 26, 0)),  # 2
    Part.LineSegment(App.Vector(4.2, 26, 0), App.Vector(0, 30.1, 0)),  # 3
    Part.LineSegment(App.Vector(0, 30.1, 0), App.Vector(0, 21.5, 0)),  # 4
], False)
sketch9.addGeometry(Part.LineSegment(App.Vector(4.2, 21.5, 0), App.Vector(0, 21.5, 0)), True)  # axis
sketch9.addConstraint([
    Sketcher.Constraint("Coincident", 0, 2, 1, 1),
    Sketcher.Constraint("Coincident", 1, 2, 2, 1),
    Sketcher.Constraint("Coincident", 2, 2, 3, 1),
    Sketcher.Constraint("Coincident", 3, 2, 4, 1),
    Sketcher.Constraint("Coincident", 4, 2, 0, 1),
    Sketcher.Constraint("Horizontal", 0),
    Sketcher.Constraint("Vertical", 1),
    Sketcher.Constraint("Horizontal", 2),
    Sketcher.Constraint("Vertical", 4),
    Sketcher.Constraint("Horizontal", 5),
    Sketcher.Constraint("Coincident", 5, 2, 4, 2),
    Sketcher.Constraint("PointOnObject", 3, 2, -2),
    Sketcher.Constraint("Vertical", 2, 2, 5, 1),
    Sketcher.Constraint("DistanceX", 0, 1, 0, 2, 2.0),
    Sketcher.Constraint("Angle", 3, Q("135 deg")),
    Sketcher.Constraint("DistanceY", 1, 1, 1, 2, 4.5),
    Sketcher.Constraint("DistanceY", -1, 1, 1, 2, 26.0),
    Sketcher.Constraint("DistanceX", 2, 1, 2, 2, 2.15),
])
groove8 = body.newObject("PartDesign::Groove", "Groove007")
groove8.Profile = sketch9
groove8.ReferenceAxis = (sketch9, ["Axis0"])
groove8.Angle = 360

# Sketch on YZ plane
sketch10 = body.newObject("Sketcher::SketchObject", "Sketch009")
sketch10.AttachmentSupport = (doc.getObject("YZ_Plane"), [""])
sketch10.MapMode = "FlatFace"
sketch10.AttachmentOffset = App.Placement(App.Vector(0, 0, 21.5), App.Rotation())
sketch10.addGeometry([
    Part.LineSegment(App.Vector(0, 207.5, 0), App.Vector(2, 207.5, 0)),  # 0
    Part.LineSegment(App.Vector(2, 207.5, 0), App.Vector(2, 212, 0)),  # 1
    Part.LineSegment(App.Vector(2, 212, 0), App.Vector(4.2, 212, 0)),  # 2
    Part.LineSegment(App.Vector(4.2, 212, 0), App.Vector(0, 216.2, 0)),  # 3
    Part.LineSegment(App.Vector(0, 216.2, 0), App.Vector(0, 207.5, 0)),  # 4
], False)
sketch10.addGeometry(Part.LineSegment(App.Vector(4.2, 207.5, 0), App.Vector(0, 207.5, 0)), True)  # axis
sketch10.addConstraint([
    Sketcher.Constraint("Coincident", 0, 2, 1, 1),
    Sketcher.Constraint("Coincident", 1, 2, 2, 1),
    Sketcher.Constraint("Coincident", 2, 2, 3, 1),
    Sketcher.Constraint("Coincident", 3, 2, 4, 1),
    Sketcher.Constraint("Coincident", 4, 2, 0, 1),
    Sketcher.Constraint("Horizontal", 0),
    Sketcher.Constraint("Vertical", 1),
    Sketcher.Constraint("Horizontal", 2),
    Sketcher.Constraint("Vertical", 4),
    Sketcher.Constraint("Horizontal", 5),
    Sketcher.Constraint("Coincident", 5, 2, 4, 2),
    Sketcher.Constraint("PointOnObject", 3, 2, -2),
    Sketcher.Constraint("Vertical", 2, 2, 5, 1),
    Sketcher.Constraint("DistanceX", 0, 1, 0, 2, 2.0),
    Sketcher.Constraint("Angle", 3, Q("135 deg")),
    Sketcher.Constraint("DistanceY", 1, 1, 1, 2, 4.5),
    Sketcher.Constraint("DistanceY", -1, 1, 1, 2, 212.0),
    Sketcher.Constraint("DistanceX", 2, 1, 2, 2, 2.15),
])
groove9 = body.newObject("PartDesign::Groove", "Groove008")
groove9.Profile = sketch10
groove9.ReferenceAxis = (sketch10, ["Axis0"])
groove9.Angle = 360

# Sketch on YZ plane
sketch11 = body.newObject("Sketcher::SketchObject", "Sketch010")
sketch11.AttachmentSupport = (doc.getObject("YZ_Plane"), [""])
sketch11.MapMode = "FlatFace"
sketch11.AttachmentOffset = App.Placement(App.Vector(0, 0, 21.5), App.Rotation())
sketch11.addGeometry([
    Part.LineSegment(App.Vector(0, 542.5, 0), App.Vector(2, 542.5, 0)),  # 0
    Part.LineSegment(App.Vector(2, 542.5, 0), App.Vector(2, 547, 0)),  # 1
    Part.LineSegment(App.Vector(2, 547, 0), App.Vector(4.2, 547, 0)),  # 2
    Part.LineSegment(App.Vector(4.2, 547, 0), App.Vector(0, 551.1, 0)),  # 3
    Part.LineSegment(App.Vector(0, 551.1, 0), App.Vector(0, 542.5, 0)),  # 4
], False)
sketch11.addGeometry(Part.LineSegment(App.Vector(4.2, 542.5, 0), App.Vector(0, 542.5, 0)), True)  # axis
sketch11.addConstraint([
    Sketcher.Constraint("Coincident", 0, 2, 1, 1),
    Sketcher.Constraint("Coincident", 1, 2, 2, 1),
    Sketcher.Constraint("Coincident", 2, 2, 3, 1),
    Sketcher.Constraint("Coincident", 3, 2, 4, 1),
    Sketcher.Constraint("Coincident", 4, 2, 0, 1),
    Sketcher.Constraint("Horizontal", 0),
    Sketcher.Constraint("Vertical", 1),
    Sketcher.Constraint("Horizontal", 2),
    Sketcher.Constraint("Vertical", 4),
    Sketcher.Constraint("Horizontal", 5),
    Sketcher.Constraint("Coincident", 5, 2, 4, 2),
    Sketcher.Constraint("PointOnObject", 3, 2, -2),
    Sketcher.Constraint("Vertical", 2, 2, 5, 1),
    Sketcher.Constraint("DistanceX", 0, 1, 0, 2, 2.0),
    Sketcher.Constraint("Angle", 3, Q("135 deg")),
    Sketcher.Constraint("DistanceY", 1, 1, 1, 2, 4.5),
    Sketcher.Constraint("DistanceY", -1, 1, 1, 2, 547.0),
    Sketcher.Constraint("DistanceX", 2, 1, 2, 2, 2.15),
])
groove10 = body.newObject("PartDesign::Groove", "Groove009")
groove10.Profile = sketch11
groove10.ReferenceAxis = (sketch11, ["Axis0"])
groove10.Angle = 360

doc.recompute()
